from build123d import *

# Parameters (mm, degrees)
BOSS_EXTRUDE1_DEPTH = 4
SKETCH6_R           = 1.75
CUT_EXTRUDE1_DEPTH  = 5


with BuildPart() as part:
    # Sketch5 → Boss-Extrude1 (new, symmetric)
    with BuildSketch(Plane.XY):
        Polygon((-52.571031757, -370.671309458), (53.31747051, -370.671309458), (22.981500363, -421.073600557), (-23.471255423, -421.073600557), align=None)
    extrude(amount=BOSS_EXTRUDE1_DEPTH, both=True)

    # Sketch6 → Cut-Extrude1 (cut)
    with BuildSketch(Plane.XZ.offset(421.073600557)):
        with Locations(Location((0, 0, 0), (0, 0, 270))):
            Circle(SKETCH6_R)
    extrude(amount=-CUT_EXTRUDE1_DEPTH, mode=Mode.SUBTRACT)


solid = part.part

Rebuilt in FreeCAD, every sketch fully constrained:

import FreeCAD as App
import Part
import Sketcher

V = App.Vector
Q = App.Units.Quantity

doc = App.newDocument("Part")
body = doc.addObject("PartDesign::Body", "Body")

# Sketch on XY plane
sketch1 = body.newObject("Sketcher::SketchObject", "Sketch")
sketch1.AttachmentSupport = (doc.getObject("XY_Plane"), [""])
sketch1.MapMode = "FlatFace"
sketch1.addGeometry(Part.LineSegment(V(53, -371, 0), V(-53, -371, 0)), False)
sketch1.addGeometry(Part.LineSegment(V(-53, -371, 0), V(-23, -421, 0)), False)
sketch1.addGeometry(Part.LineSegment(V(-23, -421, 0), V(23, -421, 0)), False)
sketch1.addGeometry(Part.LineSegment(V(23, -421, 0), V(53, -371, 0)), False)
sketch1.addConstraint(Sketcher.Constraint("Coincident", 0, 2, 1, 1))
sketch1.addConstraint(Sketcher.Constraint("Coincident", 1, 2, 2, 1))
sketch1.addConstraint(Sketcher.Constraint("Coincident", 2, 2, 3, 1))
sketch1.addConstraint(Sketcher.Constraint("Coincident", 3, 2, 0, 1))
sketch1.addConstraint(Sketcher.Constraint("Horizontal", 0))
sketch1.addConstraint(Sketcher.Constraint("Horizontal", 2))
sketch1.addConstraint(Sketcher.Constraint("Angle", 1, Q("-60 deg")))
sketch1.addConstraint(Sketcher.Constraint("DistanceY", 1, 2, -1, 1, 421.073601))
sketch1.addConstraint(Sketcher.Constraint("DistanceX", -1, 1, 2, 2, 22.9815))
sketch1.addConstraint(Sketcher.Constraint("Distance", 3, 58.827392))
sketch1.addConstraint(Sketcher.Constraint("DistanceX", 0, 2, 0, 1, 105.888502))
sketch1.addConstraint(Sketcher.Constraint("DistanceX", 2, 1, 2, 2, 46.452756))
pad1 = body.newObject("PartDesign::Pad", "Pad")
pad1.Profile = sketch1
pad1.Length = 8
pad1.Midplane = True

# Sketch on XZ plane
sketch2 = body.newObject("Sketcher::SketchObject", "Sketch001")
sketch2.AttachmentSupport = (doc.getObject("XZ_Plane"), [""])
sketch2.MapMode = "FlatFace"
sketch2.AttachmentOffset = App.Placement(V(0, 0, 421.073601), App.Rotation())
sketch2.addGeometry(Part.Circle(V(0, 0, 0), V(0, 0, 1), 1.8), False)
sketch2.addConstraint(Sketcher.Constraint("Coincident", 0, 3, -1, 1))
sketch2.addConstraint(Sketcher.Constraint("Diameter", 0, 3.5))
pocket1 = body.newObject("PartDesign::Pocket", "Pocket")
pocket1.Profile = sketch2
pocket1.Length = 5

doc.recompute()
